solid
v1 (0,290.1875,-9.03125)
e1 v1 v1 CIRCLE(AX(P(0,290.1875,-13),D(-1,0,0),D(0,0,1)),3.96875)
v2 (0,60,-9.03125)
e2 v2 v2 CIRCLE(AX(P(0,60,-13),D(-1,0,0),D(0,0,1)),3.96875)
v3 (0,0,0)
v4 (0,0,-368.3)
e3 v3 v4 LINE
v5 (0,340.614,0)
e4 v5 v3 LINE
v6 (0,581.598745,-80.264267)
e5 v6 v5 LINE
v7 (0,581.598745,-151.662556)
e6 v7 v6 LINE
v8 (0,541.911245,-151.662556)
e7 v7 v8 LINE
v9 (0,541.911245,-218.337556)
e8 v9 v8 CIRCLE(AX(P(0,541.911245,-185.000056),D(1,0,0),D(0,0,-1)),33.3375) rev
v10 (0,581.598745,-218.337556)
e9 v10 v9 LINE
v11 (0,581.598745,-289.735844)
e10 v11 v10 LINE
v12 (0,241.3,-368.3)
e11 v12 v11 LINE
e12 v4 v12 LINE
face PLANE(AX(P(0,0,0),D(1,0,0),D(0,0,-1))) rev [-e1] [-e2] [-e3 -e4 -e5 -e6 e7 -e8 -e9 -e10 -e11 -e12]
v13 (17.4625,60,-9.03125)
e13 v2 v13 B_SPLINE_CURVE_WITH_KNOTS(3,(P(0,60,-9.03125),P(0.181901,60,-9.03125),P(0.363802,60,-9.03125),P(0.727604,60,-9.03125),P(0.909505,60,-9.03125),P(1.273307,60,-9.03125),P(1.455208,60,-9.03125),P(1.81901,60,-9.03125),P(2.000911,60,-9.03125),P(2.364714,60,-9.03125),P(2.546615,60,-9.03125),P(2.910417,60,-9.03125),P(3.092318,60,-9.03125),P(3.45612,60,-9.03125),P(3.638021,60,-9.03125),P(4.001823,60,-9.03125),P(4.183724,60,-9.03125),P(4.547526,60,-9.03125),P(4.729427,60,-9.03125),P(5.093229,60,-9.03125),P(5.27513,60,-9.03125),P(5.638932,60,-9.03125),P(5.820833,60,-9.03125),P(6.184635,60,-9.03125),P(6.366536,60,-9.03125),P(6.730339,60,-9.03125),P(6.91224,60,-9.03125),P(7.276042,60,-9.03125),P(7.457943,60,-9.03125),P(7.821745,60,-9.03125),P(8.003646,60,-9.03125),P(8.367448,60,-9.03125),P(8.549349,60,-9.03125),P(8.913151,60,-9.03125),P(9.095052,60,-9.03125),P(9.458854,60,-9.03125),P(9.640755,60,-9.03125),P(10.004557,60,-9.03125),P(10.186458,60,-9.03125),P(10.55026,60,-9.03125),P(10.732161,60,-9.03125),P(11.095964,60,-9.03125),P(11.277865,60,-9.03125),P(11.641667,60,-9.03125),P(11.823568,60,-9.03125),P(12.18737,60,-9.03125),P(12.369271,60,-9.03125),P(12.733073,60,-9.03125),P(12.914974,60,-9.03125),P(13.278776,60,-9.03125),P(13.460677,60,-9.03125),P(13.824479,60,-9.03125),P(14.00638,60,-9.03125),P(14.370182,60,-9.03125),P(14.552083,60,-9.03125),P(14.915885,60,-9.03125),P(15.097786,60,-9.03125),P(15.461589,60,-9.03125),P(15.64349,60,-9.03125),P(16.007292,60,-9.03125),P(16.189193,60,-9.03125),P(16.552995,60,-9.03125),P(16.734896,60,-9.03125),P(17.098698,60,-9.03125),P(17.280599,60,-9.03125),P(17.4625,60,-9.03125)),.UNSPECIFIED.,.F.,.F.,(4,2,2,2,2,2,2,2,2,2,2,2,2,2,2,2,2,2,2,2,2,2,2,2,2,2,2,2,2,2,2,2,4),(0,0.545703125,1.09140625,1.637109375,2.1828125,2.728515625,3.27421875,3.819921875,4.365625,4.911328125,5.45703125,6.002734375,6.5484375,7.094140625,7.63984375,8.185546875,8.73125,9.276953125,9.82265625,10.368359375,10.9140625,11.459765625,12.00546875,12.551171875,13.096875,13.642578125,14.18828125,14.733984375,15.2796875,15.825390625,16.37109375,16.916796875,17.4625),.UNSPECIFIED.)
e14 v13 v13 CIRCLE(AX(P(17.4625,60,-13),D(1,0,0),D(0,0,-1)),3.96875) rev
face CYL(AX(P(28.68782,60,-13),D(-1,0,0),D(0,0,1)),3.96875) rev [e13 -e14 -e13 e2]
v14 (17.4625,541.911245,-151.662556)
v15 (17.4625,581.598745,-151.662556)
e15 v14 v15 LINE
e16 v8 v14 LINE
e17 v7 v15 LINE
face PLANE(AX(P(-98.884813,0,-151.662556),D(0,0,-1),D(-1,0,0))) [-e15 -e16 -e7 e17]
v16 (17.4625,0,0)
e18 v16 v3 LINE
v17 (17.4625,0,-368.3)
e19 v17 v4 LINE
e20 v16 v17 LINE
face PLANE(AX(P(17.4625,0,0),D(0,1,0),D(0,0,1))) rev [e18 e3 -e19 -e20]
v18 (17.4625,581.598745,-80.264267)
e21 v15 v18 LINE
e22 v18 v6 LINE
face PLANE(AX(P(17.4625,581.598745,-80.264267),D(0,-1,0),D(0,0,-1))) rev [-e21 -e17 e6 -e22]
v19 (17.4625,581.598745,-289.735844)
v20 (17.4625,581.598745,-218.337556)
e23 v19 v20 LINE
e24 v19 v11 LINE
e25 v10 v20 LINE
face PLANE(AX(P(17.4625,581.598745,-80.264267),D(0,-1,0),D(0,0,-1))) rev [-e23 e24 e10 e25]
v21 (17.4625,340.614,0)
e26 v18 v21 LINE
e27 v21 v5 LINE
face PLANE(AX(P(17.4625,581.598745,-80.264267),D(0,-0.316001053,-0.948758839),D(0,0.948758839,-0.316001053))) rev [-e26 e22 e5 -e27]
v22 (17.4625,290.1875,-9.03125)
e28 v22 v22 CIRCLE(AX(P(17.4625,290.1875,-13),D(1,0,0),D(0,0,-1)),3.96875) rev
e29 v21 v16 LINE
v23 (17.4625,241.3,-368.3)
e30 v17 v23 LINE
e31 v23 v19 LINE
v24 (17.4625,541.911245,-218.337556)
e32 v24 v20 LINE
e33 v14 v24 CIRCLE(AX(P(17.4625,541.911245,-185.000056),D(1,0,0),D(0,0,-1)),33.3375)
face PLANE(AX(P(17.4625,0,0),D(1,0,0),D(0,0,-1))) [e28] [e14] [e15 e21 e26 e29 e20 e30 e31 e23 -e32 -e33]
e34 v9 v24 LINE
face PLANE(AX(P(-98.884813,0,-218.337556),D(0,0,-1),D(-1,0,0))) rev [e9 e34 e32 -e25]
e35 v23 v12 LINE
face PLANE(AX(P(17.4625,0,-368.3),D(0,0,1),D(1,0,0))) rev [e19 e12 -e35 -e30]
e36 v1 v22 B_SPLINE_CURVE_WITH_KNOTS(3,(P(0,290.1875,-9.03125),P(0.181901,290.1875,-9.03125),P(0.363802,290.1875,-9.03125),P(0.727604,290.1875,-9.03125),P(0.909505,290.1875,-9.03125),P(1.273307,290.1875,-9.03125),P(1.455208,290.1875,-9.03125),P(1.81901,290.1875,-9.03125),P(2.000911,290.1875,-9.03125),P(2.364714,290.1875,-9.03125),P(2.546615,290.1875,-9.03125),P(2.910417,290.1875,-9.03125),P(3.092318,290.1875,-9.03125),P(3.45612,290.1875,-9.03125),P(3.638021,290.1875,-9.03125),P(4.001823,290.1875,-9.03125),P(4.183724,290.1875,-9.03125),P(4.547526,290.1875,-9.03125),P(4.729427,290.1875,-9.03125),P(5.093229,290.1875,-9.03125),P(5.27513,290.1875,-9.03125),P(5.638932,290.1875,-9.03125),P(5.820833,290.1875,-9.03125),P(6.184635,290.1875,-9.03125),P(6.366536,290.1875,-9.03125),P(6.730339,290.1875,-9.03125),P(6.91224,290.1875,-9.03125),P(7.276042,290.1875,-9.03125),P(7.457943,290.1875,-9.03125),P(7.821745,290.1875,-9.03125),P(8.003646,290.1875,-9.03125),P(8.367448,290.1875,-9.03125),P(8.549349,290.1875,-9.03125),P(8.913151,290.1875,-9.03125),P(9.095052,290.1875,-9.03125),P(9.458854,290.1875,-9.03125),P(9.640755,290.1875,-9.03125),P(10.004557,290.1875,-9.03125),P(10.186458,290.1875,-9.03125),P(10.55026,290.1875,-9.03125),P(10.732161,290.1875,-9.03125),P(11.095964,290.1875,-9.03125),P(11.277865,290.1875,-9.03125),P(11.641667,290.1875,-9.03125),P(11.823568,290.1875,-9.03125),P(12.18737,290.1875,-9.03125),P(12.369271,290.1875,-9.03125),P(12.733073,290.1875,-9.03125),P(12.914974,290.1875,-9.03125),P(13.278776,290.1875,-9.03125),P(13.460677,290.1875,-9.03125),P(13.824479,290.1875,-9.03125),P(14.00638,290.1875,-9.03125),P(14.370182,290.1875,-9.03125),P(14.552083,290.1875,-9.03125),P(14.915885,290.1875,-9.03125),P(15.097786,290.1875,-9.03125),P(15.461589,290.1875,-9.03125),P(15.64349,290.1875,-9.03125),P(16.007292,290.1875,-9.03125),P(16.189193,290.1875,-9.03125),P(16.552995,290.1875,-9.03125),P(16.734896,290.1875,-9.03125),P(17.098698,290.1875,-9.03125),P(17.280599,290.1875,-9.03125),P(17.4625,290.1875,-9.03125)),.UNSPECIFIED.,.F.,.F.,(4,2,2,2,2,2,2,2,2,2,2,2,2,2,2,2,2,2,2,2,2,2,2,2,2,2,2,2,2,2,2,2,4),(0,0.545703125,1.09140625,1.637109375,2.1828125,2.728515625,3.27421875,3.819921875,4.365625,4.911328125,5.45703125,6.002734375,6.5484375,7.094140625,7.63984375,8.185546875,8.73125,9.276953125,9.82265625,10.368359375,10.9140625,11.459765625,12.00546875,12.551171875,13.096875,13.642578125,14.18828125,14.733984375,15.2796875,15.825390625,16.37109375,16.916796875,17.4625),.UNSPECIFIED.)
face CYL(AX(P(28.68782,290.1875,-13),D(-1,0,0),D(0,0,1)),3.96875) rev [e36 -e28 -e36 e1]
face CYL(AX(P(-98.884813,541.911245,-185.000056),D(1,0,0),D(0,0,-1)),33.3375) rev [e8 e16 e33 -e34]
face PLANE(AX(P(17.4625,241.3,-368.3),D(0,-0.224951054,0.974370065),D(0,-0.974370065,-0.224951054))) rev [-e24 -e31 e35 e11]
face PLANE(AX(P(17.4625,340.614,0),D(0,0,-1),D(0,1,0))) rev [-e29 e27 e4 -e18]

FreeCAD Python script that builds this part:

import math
import FreeCAD as App
import Part
import Sketcher

V = App.Vector
Q = App.Units.Quantity

doc = App.newDocument("Part")
params = doc.addObject("Spreadsheet::Sheet", "Params")
for row, (alias, value) in enumerate([
    ("sketch1_length", "10 in"),
    ("sketch1_width", "9.5 in"),
    ("sketch1_height", "14.5 in"),
    ("sketch1_width2", "13.41 in"),
    ("sketch1_length2", "13.75 in"),
    ("pad1_length", "0.6875 in"),
    ("sketch2_radius", "1.3125 in"),
    ("sketch2_width", "1.5625 in"),
    ("pocket1_length", "0.6875 in"),
    ("sketch3_diameter", "0.3125 in"),
    ("pocket2_length", "0.6875 in"),
], start=1):
    params.set(f"A{row}", alias)
    params.set(f"B{row}", "=" + value)
    params.setAlias(f"B{row}", alias)

body = doc.addObject("PartDesign::Body", "Body")

sketch1 = body.newObject("Sketcher::SketchObject", "Sketch")
sketch1.AttachmentSupport = (doc.getObject("YZ_Plane"), [""])
sketch1.MapMode = "FlatFace"
sketch1.addGeometry(Part.LineSegment(V(0, 0, 0), V(0, -368.3, 0)), False)
sketch1.addGeometry(Part.LineSegment(V(0, -368.3, 0), V(241.3, -368.3, 0)), False)
sketch1.addGeometry(Part.LineSegment(V(241.3, -368.3, 0), V(581.598745, -289.735844, 0)), False)
sketch1.addGeometry(Part.LineSegment(V(581.598745, -289.735844, 0), V(581.598745, -80.264267, 0)), False)
sketch1.addGeometry(Part.LineSegment(V(581.598745, -80.264267, 0), V(340.614, 0, 0)), False)
sketch1.addGeometry(Part.LineSegment(V(340.614, 0, 0), V(0, 0, 0)), False)
sketch1.addConstraint(Sketcher.Constraint("Coincident", 0, 2, 1, 1))
sketch1.addConstraint(Sketcher.Constraint("Coincident", 1, 2, 2, 1))
sketch1.addConstraint(Sketcher.Constraint("Coincident", 2, 2, 3, 1))
sketch1.addConstraint(Sketcher.Constraint("Coincident", 3, 2, 4, 1))
sketch1.addConstraint(Sketcher.Constraint("Coincident", 4, 2, 5, 1))
sketch1.addConstraint(Sketcher.Constraint("Coincident", 5, 2, 0, 1))
sketch1.addConstraint(Sketcher.Constraint("Vertical", 0))
sketch1.addConstraint(Sketcher.Constraint("Horizontal", 1))
sketch1.addConstraint(Sketcher.Constraint("Vertical", 3))
sketch1.addConstraint(Sketcher.Constraint("Horizontal", 5))
sketch1.addConstraint(Sketcher.Constraint("Coincident", 5, 2, -1, 1))
sketch1.addConstraint(Sketcher.Constraint("Distance", 4, Q("10 in")))
sketch1.addConstraint(Sketcher.Constraint("DistanceX", 1, 1, 1, 2, Q("9.5 in")))
sketch1.addConstraint(Sketcher.Constraint("DistanceY", 0, 2, 0, 1, Q("14.5 in")))
sketch1.addConstraint(Sketcher.Constraint("Angle", 2, Q("13 deg")))
sketch1.addConstraint(Sketcher.Constraint("DistanceX", 5, 2, 5, 1, Q("13.41 in")))
sketch1.addConstraint(Sketcher.Constraint("Distance", 2, Q("13.75 in")))
sketch1.setExpression("Constraints[11]", "Params.sketch1_length")
sketch1.setExpression("Constraints[12]", "Params.sketch1_width")
sketch1.setExpression("Constraints[13]", "Params.sketch1_height")
sketch1.setExpression("Constraints[15]", "Params.sketch1_width2")
sketch1.setExpression("Constraints[16]", "Params.sketch1_length2")
pad1 = body.newObject("PartDesign::Pad", "Pad")
pad1.Profile = sketch1
pad1.setExpression("Length", "Params.pad1_length")

sketch2 = body.newObject("Sketcher::SketchObject", "Sketch001")
sketch2.AttachmentSupport = (doc.getObject("YZ_Plane"), [""])
sketch2.MapMode = "FlatFace"
sketch2.AttachmentOffset = App.Placement(V(0, 0, 0.6875 * 25.4), App.Rotation())
sketch2.addGeometry(Part.ArcOfCircle(Part.Circle(V(541.911245, -185.000056, 0), V(0, 0, 1), 33.3375), math.radians(90), math.radians(270)), False)
sketch2.addGeometry(Part.LineSegment(V(541.911245, -218.337556, 0), V(581.598745, -218.337556, 0)), False)
sketch2.addGeometry(Part.LineSegment(V(581.598745, -218.337556, 0), V(581.598745, -151.662556, 0)), False)
sketch2.addGeometry(Part.LineSegment(V(581.598745, -151.662556, 0), V(541.911245, -151.662556, 0)), False)
sketch2.addConstraint(Sketcher.Constraint("Tangent", 0, 2, 1, 1))
sketch2.addConstraint(Sketcher.Constraint("Coincident", 1, 2, 2, 1))
sketch2.addConstraint(Sketcher.Constraint("Coincident", 2, 2, 3, 1))
sketch2.addConstraint(Sketcher.Constraint("Tangent", 3, 2, 0, 1))
sketch2.addConstraint(Sketcher.Constraint("Horizontal", 1))
sketch2.addConstraint(Sketcher.Constraint("Vertical", 2))
sketch2.addConstraint(Sketcher.Constraint("Horizontal", 3))
sketch2.addConstraint(Sketcher.Constraint("Radius", 0, Q("1.3125 in")))
sketch2.addConstraint(Sketcher.Constraint("DistanceX", 1, 1, 1, 2, Q("1.5625 in")))
sketch2.addConstraint(Sketcher.Constraint("DistanceX", -1, 1, 0, 3, Q("541.911245 mm")))
sketch2.addConstraint(Sketcher.Constraint("DistanceY", 0, 3, -1, 1, Q("185.000056 mm")))
sketch2.setExpression("Constraints[7]", "Params.sketch2_radius")
sketch2.setExpression("Constraints[8]", "Params.sketch2_width")
pocket1 = body.newObject("PartDesign::Pocket", "Pocket")
pocket1.Profile = sketch2
pocket1.setExpression("Length", "Params.pocket1_length")

sketch3 = body.newObject("Sketcher::SketchObject", "Sketch002")
sketch3.AttachmentSupport = (doc.getObject("YZ_Plane"), [""])
sketch3.MapMode = "FlatFace"
sketch3.addGeometry(Part.Circle(V(60, -13, 0), V(0, 0, 1), 3.96875), False)
sketch3.addGeometry(Part.Circle(V(290.1875, -13, 0), V(0, 0, 1), 3.96875), False)
sketch3.addConstraint(Sketcher.Constraint("Equal", 0, 1))
sketch3.addConstraint(Sketcher.Constraint("Horizontal", 0, 3, 1, 3))
sketch3.addConstraint(Sketcher.Constraint("Diameter", 0, Q("0.3125 in")))
sketch3.addConstraint(Sketcher.Constraint("DistanceX", 0, 3, 1, 3, Q("9.0625 in")))
sketch3.addConstraint(Sketcher.Constraint("DistanceX", -1, 1, 0, 3, Q("60 mm")))
sketch3.addConstraint(Sketcher.Constraint("DistanceY", 0, 3, -1, 1, Q("13 mm")))
sketch3.setExpression("Constraints[2]", "Params.sketch3_diameter")
pocket2 = body.newObject("PartDesign::Pocket", "Pocket001")
pocket2.Profile = sketch3
pocket2.setExpression("Length", "Params.pocket2_length")
pocket2.Reversed = True

doc.recompute()
